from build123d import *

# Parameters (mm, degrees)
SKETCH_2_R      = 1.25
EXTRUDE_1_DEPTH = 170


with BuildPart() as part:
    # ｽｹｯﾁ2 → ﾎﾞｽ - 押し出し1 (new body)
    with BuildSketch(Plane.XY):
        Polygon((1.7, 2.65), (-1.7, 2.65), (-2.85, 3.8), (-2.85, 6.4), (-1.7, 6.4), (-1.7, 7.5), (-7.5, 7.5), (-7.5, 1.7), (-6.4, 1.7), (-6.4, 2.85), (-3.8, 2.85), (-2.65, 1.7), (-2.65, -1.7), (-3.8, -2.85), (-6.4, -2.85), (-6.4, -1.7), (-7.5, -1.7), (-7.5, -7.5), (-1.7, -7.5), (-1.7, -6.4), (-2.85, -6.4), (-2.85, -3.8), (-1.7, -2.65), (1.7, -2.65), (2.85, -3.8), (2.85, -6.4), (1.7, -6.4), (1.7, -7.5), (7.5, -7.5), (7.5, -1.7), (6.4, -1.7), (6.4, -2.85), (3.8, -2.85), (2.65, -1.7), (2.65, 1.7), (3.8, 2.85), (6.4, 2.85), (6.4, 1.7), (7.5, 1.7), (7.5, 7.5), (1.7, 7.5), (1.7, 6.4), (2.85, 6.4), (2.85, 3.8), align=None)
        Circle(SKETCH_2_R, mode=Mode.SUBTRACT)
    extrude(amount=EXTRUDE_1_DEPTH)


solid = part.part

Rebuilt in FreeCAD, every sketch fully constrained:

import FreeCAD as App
import Part
import Sketcher
from FreeCAD import Vector
Q = App.Units.Quantity


def add_polygon(sketch, points):
    """Adds a closed chain of lines whose ends are joined by coincident constraints."""
    first, n = sketch.GeometryCount, len(points)
    for a, b in zip(points, points[1:] + points[:1]):
        sketch.addGeometry(Part.LineSegment(App.Vector(*a, 0), App.Vector(*b, 0)), False)
    for i in range(n):
        sketch.addConstraint(Sketcher.Constraint("Coincident", first + i, 2, first + (i + 1) % n, 1))

doc = App.newDocument("Part")
body = doc.addObject("PartDesign::Body", "Body")

# Sketch on XY plane
sketch1 = body.newObject("Sketcher::SketchObject", "Sketch")
sketch1.AttachmentSupport = (doc.getObject("XY_Plane"), [""])
sketch1.MapMode = "FlatFace"
add_polygon(sketch1, [(1.7, 2.6), (-1.7, 2.6), (-2.9, 3.8), (-2.9, 6.4), (-1.7, 6.4), (-1.7, 7.5), (-7.5, 7.5), (-7.5, 1.7), (-6.4, 1.7), (-6.4, 2.9), (-3.8, 2.9), (-2.6, 1.7), (-2.6, -1.7), (-3.8, -2.9), (-6.4, -2.9), (-6.4, -1.7), (-7.5, -1.7), (-7.5, -7.5), (-1.7, -7.5), (-1.7, -6.4), (-2.9, -6.4), (-2.9, -3.8), (-1.7, -2.6), (1.7, -2.6), (2.9, -3.8), (2.9, -6.4), (1.7, -6.4), (1.7, -7.5), (7.5, -7.5), (7.5, -1.7), (6.4, -1.7), (6.4, -2.9), (3.8, -2.9), (2.6, -1.7), (2.6, 1.7), (3.8, 2.9), (6.4, 2.9), (6.4, 1.7), (7.5, 1.7), (7.5, 7.5), (1.7, 7.5), (1.7, 6.4), (2.9, 6.4), (2.9, 3.8)])  # lines 0-43
sketch1.addGeometry(Part.Circle(Vector(0, 0, 0), Vector(0, 0, 1), 1.2), False)  # 44
sketch1.addConstraint([
    Sketcher.Constraint("Horizontal", 0),
    Sketcher.Constraint("Vertical", 2),
    Sketcher.Constraint("Horizontal", 3),
    Sketcher.Constraint("Vertical", 4),
    Sketcher.Constraint("Horizontal", 5),
    Sketcher.Constraint("Vertical", 6),
    Sketcher.Constraint("Horizontal", 7),
    Sketcher.Constraint("Vertical", 8),
    Sketcher.Constraint("Horizontal", 9),
    Sketcher.Constraint("Vertical", 11),
    Sketcher.Constraint("Horizontal", 13),
    Sketcher.Constraint("Vertical", 14),
    Sketcher.Constraint("Horizontal", 15),
    Sketcher.Constraint("Vertical", 16),
    Sketcher.Constraint("Horizontal", 17),
    Sketcher.Constraint("Vertical", 18),
    Sketcher.Constraint("Horizontal", 19),
    Sketcher.Constraint("Vertical", 20),
    Sketcher.Constraint("Horizontal", 22),
    Sketcher.Constraint("Vertical", 24),
    Sketcher.Constraint("Horizontal", 25),
    Sketcher.Constraint("Vertical", 26),
    Sketcher.Constraint("Horizontal", 27),
    Sketcher.Constraint("Vertical", 28),
    Sketcher.Constraint("Horizontal", 29),
    Sketcher.Constraint("Vertical", 30),
    Sketcher.Constraint("Horizontal", 31),
    Sketcher.Constraint("Vertical", 33),
    Sketcher.Constraint("Horizontal", 35),
    Sketcher.Constraint("Vertical", 36),
    Sketcher.Constraint("Horizontal", 37),
    Sketcher.Constraint("Vertical", 38),
    Sketcher.Constraint("Horizontal", 39),
    Sketcher.Constraint("Vertical", 40),
    Sketcher.Constraint("Horizontal", 41),
    Sketcher.Constraint("Vertical", 42),
    Sketcher.Constraint("Coincident", 44, 3, -1, 1),
    Sketcher.Constraint("Symmetric", 0, 2, 22, 2, -1, 1),
    Sketcher.Constraint("Symmetric", 1, 2, 23, 2, -1, 1),
    Sketcher.Constraint("Symmetric", 3, 2, 25, 2, -1, 1),
    Sketcher.Constraint("Symmetric", 5, 2, 27, 2, -1, 1),
    Sketcher.Constraint("Symmetric", 7, 2, 29, 2, -1, 1),
    Sketcher.Constraint("Symmetric", 9, 2, 31, 2, -1, 1),
    Sketcher.Constraint("Symmetric", 10, 2, 32, 2, -1, 1),
    Sketcher.Constraint("Symmetric", 12, 2, 34, 2, -1, 1),
    Sketcher.Constraint("Symmetric", 14, 2, 36, 2, -1, 1),
    Sketcher.Constraint("Symmetric", 16, 2, 38, 2, -1, 1),
    Sketcher.Constraint("Symmetric", 18, 2, 40, 2, -1, 1),
    Sketcher.Constraint("Symmetric", 20, 2, 42, 2, -1, 1),
    Sketcher.Constraint("Symmetric", 20, 2, 23, 2, -2),
    Sketcher.Constraint("Symmetric", 18, 2, 25, 2, -2),
    Sketcher.Constraint("Symmetric", 16, 2, 27, 2, -2),
    Sketcher.Constraint("Symmetric", 14, 2, 29, 2, -2),
    Sketcher.Constraint("Symmetric", 12, 2, 31, 2, -2),
    Sketcher.Constraint("Parallel", 1, 10),
    Sketcher.Constraint("Perpendicular", 10, 12),
    Sketcher.Constraint("Parallel", 12, 21),
    Sketcher.Constraint("Perpendicular", 32, 34),
    Sketcher.Constraint("Parallel", 34, 43),
    Sketcher.Constraint("Horizontal", 7, 2, 10, 2),
    Sketcher.Constraint("Horizontal", 11, 2, 14, 2),
    Sketcher.Constraint("Vertical", 0, 2, 3, 2),
    Sketcher.Constraint("Equal", 35, 2),
    Sketcher.Constraint("Equal", 37, 4),
    Sketcher.Constraint("Equal", 39, 6),
    Sketcher.Constraint("Equal", 41, 8),
    Sketcher.Constraint("Equal", 22, 11),
    Sketcher.Constraint("Diameter", 44, Q("2.5 mm")),
    Sketcher.Constraint("DistanceX", 0, 2, 0, 1, Q("3.4 mm")),
    Sketcher.Constraint("DistanceX", 5, 2, 5, 1, Q("5.8 mm")),
    Sketcher.Constraint("DistanceX", 7, 1, 7, 2, Q("1.1 mm")),
    Sketcher.Constraint("DistanceX", 9, 1, 9, 2, Q("2.6 mm")),
    Sketcher.Constraint("DistanceX", 3, 1, 3, 2, Q("1.15 mm")),
])
pad1 = body.newObject("PartDesign::Pad", "Pad")
pad1.Profile = sketch1
pad1.Length = 170

doc.recompute()
